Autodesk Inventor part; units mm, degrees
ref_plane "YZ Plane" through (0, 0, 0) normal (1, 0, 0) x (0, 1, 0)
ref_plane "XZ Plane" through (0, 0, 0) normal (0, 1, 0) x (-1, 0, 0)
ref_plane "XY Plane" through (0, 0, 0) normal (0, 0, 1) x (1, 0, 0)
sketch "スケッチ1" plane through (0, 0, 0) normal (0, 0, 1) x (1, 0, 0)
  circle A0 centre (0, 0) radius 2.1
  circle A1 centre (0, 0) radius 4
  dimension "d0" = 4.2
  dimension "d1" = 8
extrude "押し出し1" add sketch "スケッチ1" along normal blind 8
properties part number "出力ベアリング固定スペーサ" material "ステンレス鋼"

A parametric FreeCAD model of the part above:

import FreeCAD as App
import Part
import Sketcher

V = App.Vector

doc = App.newDocument("Part")
params = doc.addObject("Spreadsheet::Sheet", "Params")
for row, (alias, value) in enumerate([
    ("sketch1_diameter", "8 mm"),
    ("sketch1_diameter2", "4.2 mm"),
    ("pad1_length", "8 mm"),
], start=1):
    params.set(f"A{row}", alias)
    params.set(f"B{row}", "=" + value)
    params.setAlias(f"B{row}", alias)

body = doc.addObject("PartDesign::Body", "Body")

sketch1 = body.newObject("Sketcher::SketchObject", "Sketch")
sketch1.AttachmentSupport = (doc.getObject("XY_Plane"), [""])
sketch1.MapMode = "FlatFace"
sketch1.addGeometry([
    Part.Circle(V(0, 0, 0), V(0, 0, 1), 4),
    Part.Circle(V(0, 0, 0), V(0, 0, 1), 2.1),
], False)
sketch1.addConstraint([
    Sketcher.Constraint("Coincident", 0, 3, -1, 1),
    Sketcher.Constraint("Coincident", 1, 3, -1, 1),
    Sketcher.Constraint("Diameter", 0, 8.0),
    Sketcher.Constraint("Diameter", 1, 4.2),
])
sketch1.setExpression("Constraints[2]", "Params.sketch1_diameter")
sketch1.setExpression("Constraints[3]", "Params.sketch1_diameter2")
pad1 = body.newObject("PartDesign::Pad", "Pad")
pad1.Profile = sketch1
pad1.setExpression("Length", "Params.pad1_length")

doc.recompute()
